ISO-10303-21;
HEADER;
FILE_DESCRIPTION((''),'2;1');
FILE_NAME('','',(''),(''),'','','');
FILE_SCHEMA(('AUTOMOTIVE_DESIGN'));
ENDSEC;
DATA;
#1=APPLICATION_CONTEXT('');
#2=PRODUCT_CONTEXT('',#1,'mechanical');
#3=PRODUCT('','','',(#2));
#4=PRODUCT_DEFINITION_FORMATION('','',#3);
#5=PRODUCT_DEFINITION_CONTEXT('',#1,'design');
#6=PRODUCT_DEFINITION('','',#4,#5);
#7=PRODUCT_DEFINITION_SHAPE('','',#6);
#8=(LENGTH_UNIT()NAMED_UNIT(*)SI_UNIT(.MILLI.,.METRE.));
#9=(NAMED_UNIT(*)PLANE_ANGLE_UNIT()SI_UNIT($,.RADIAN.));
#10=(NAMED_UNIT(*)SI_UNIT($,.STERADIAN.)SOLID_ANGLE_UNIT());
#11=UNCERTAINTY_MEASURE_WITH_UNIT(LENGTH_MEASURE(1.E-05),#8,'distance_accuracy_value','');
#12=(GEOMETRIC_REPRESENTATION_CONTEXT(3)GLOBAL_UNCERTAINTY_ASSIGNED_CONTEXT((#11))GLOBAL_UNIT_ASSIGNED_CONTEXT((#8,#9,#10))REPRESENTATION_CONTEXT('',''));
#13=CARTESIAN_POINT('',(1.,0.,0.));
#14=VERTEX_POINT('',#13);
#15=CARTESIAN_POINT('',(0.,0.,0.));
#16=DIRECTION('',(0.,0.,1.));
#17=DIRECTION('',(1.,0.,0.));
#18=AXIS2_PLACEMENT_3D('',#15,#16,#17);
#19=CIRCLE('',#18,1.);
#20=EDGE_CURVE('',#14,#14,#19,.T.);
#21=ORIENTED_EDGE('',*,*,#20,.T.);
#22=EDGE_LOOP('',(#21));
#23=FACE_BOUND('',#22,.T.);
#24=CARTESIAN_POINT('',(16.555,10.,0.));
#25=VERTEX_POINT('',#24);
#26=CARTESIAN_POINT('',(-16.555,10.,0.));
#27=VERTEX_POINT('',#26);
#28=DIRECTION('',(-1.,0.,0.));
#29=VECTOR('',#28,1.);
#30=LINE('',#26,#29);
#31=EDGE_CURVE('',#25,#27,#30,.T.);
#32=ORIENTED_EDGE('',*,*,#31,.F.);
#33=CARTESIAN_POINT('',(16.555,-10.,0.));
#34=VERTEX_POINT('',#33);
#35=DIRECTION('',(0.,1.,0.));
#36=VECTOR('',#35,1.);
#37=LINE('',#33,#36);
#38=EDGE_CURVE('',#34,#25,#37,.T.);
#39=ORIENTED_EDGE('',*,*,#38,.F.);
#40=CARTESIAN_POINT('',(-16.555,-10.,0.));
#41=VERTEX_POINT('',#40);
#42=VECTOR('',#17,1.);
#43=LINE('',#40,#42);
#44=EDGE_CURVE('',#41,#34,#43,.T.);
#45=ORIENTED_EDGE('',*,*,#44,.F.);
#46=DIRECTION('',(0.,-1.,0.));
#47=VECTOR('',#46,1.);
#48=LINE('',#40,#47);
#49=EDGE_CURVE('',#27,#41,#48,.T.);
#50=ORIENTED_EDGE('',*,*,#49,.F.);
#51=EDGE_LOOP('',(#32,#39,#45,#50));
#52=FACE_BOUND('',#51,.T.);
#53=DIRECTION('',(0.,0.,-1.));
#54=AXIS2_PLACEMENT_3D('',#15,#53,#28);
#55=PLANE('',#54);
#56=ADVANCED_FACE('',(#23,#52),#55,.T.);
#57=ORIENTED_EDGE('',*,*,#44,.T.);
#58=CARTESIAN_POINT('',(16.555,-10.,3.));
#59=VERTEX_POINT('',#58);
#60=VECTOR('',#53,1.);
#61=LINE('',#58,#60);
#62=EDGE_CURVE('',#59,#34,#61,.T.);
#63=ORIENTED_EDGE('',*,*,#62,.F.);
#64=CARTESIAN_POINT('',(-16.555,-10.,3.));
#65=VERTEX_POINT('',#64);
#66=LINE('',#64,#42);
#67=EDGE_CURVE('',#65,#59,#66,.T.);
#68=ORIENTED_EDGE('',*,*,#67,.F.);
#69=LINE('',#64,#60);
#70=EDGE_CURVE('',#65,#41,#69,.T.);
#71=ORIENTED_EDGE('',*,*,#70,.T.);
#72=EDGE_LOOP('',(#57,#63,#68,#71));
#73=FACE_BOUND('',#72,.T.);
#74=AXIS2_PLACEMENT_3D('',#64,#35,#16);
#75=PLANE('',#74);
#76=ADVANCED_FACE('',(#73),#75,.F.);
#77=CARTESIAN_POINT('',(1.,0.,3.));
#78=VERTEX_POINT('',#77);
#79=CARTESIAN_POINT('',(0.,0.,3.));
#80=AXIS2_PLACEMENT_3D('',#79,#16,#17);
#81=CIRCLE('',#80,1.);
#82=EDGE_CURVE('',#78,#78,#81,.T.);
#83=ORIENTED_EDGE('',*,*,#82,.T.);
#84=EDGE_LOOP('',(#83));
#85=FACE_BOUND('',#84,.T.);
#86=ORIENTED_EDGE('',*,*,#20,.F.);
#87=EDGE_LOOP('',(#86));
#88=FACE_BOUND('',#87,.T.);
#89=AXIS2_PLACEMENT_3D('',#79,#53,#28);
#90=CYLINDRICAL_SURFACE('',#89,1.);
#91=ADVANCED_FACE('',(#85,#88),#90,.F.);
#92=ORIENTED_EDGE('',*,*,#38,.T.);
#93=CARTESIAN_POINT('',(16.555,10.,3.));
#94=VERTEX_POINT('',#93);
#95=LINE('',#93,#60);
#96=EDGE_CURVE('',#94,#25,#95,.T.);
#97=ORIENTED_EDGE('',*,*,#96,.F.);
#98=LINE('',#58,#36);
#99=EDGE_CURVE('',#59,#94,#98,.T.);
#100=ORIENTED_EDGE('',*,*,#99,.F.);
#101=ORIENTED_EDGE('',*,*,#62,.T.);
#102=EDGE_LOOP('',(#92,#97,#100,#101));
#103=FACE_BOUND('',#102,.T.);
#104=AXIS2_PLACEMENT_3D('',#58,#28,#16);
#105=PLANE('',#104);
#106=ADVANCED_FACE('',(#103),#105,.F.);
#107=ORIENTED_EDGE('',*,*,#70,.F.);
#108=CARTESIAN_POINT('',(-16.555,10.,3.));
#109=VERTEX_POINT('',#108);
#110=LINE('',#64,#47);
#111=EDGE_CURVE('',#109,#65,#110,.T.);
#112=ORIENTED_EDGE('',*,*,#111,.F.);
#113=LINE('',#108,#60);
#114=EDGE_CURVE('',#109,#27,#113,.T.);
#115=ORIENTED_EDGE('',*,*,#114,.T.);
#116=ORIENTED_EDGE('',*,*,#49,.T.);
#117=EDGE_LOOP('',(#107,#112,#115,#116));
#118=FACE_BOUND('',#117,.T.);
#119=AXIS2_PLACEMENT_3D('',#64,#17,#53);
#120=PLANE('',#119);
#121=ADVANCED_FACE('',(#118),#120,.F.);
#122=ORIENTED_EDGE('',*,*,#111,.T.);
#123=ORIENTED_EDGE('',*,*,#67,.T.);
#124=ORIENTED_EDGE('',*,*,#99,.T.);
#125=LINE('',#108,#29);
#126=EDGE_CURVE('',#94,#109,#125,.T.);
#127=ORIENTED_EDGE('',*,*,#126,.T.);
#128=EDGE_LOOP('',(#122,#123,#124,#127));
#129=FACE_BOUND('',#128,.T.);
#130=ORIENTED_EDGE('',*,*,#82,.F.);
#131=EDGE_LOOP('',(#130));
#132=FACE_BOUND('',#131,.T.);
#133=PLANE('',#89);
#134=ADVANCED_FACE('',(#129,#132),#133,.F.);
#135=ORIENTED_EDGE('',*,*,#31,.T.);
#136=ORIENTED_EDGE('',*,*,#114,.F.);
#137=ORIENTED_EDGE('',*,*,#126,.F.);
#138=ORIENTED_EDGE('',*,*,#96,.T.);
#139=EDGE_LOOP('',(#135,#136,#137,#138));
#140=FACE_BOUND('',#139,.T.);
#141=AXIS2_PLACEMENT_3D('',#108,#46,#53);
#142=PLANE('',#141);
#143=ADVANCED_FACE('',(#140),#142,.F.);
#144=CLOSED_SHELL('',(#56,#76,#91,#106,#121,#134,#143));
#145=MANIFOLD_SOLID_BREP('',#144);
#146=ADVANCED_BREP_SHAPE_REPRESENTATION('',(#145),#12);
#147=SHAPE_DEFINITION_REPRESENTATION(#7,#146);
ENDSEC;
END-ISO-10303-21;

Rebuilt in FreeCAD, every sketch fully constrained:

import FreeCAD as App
import Part
import Sketcher

doc = App.newDocument("Part")
body = doc.addObject("PartDesign::Body", "Body")

# Sketch on XY plane
sketch1 = doc.addObject("Sketcher::SketchObject", "Sketch")
body.addObject(sketch1)
sketch1.AttachmentSupport = (doc.XY_Plane, [""])
sketch1.MapMode = "FlatFace"
sketch1.addGeometry([
    Part.LineSegment(App.Vector(-16.555, 10, 0), App.Vector(-16.555, -10, 0)),  # 0
    Part.LineSegment(App.Vector(-16.555, -10, 0), App.Vector(16.555, -10, 0)),  # 1
    Part.LineSegment(App.Vector(16.555, -10, 0), App.Vector(16.555, 10, 0)),  # 2
    Part.LineSegment(App.Vector(16.555, 10, 0), App.Vector(-16.555, 10, 0)),  # 3
    Part.Circle(App.Vector(0, 0, 0), App.Vector(0, 0, 1), 1),  # 4
], False)
sketch1.addConstraint([
    Sketcher.Constraint("Coincident", 0, 2, 1, 1),
    Sketcher.Constraint("Coincident", 1, 2, 2, 1),
    Sketcher.Constraint("Coincident", 2, 2, 3, 1),
    Sketcher.Constraint("Coincident", 3, 2, 0, 1),
    Sketcher.Constraint("Vertical", 0),
    Sketcher.Constraint("Horizontal", 1),
    Sketcher.Constraint("Vertical", 2),
    Sketcher.Constraint("Horizontal", 3),
    Sketcher.Constraint("Coincident", 4, 3, -1, 1),
    Sketcher.Constraint("Symmetric", 0, 2, 2, 2, -1, 1),
    Sketcher.Constraint("Diameter", 4, 2.0),
    Sketcher.Constraint("DistanceY", 0, 2, 0, 1, 20.0),
    Sketcher.Constraint("DistanceX", 1, 1, 1, 2, 33.11),
])
pad1 = doc.addObject("PartDesign::Pad", "Pad")
body.addObject(pad1)
pad1.Profile = sketch1
pad1.Length = 3

doc.recompute()
